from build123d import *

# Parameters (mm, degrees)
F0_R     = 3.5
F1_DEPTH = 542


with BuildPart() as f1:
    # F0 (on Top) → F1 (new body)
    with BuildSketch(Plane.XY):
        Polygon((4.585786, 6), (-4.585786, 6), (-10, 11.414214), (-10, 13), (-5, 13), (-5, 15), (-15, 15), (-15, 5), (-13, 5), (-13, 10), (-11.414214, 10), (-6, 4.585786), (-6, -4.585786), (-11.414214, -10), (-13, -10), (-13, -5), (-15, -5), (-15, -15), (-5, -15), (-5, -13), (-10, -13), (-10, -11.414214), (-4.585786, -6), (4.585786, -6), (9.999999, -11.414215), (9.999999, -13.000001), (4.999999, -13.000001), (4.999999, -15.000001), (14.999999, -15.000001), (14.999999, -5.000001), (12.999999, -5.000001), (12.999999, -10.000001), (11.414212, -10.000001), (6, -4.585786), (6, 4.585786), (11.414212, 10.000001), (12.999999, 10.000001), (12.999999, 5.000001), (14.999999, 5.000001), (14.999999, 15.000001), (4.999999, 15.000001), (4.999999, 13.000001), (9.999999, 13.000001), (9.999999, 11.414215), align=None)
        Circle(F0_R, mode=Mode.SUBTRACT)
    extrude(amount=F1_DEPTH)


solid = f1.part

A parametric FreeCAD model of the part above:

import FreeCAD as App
import Part
import Sketcher

V = App.Vector

doc = App.newDocument("Part")
body = doc.addObject("PartDesign::Body", "Body")

# Sketch on XY plane
sketch1 = body.newObject("Sketcher::SketchObject", "Sketch")
sketch1.AttachmentSupport = (doc.getObject("XY_Plane"), [""])
sketch1.MapMode = "FlatFace"
sketch1.addGeometry([
    Part.LineSegment(V(4.6, 6, 0), V(-4.6, 6, 0)),  # 0
    Part.LineSegment(V(-4.6, 6, 0), V(-10, 11.4, 0)),  # 1
    Part.LineSegment(V(-10, 11.4, 0), V(-10, 13, 0)),  # 2
    Part.LineSegment(V(-10, 13, 0), V(-5, 13, 0)),  # 3
    Part.LineSegment(V(-5, 13, 0), V(-5, 15, 0)),  # 4
    Part.LineSegment(V(-5, 15, 0), V(-15, 15, 0)),  # 5
    Part.LineSegment(V(-15, 15, 0), V(-15, 5, 0)),  # 6
    Part.LineSegment(V(-15, 5, 0), V(-13, 5, 0)),  # 7
    Part.LineSegment(V(-13, 5, 0), V(-13, 10, 0)),  # 8
    Part.LineSegment(V(-13, 10, 0), V(-11.4, 10, 0)),  # 9
    Part.LineSegment(V(-11.4, 10, 0), V(-6, 4.6, 0)),  # 10
    Part.LineSegment(V(-6, 4.6, 0), V(-6, -4.6, 0)),  # 11
    Part.LineSegment(V(-6, -4.6, 0), V(-11.4, -10, 0)),  # 12
    Part.LineSegment(V(-11.4, -10, 0), V(-13, -10, 0)),  # 13
    Part.LineSegment(V(-13, -10, 0), V(-13, -5, 0)),  # 14
    Part.LineSegment(V(-13, -5, 0), V(-15, -5, 0)),  # 15
    Part.LineSegment(V(-15, -5, 0), V(-15, -15, 0)),  # 16
    Part.LineSegment(V(-15, -15, 0), V(-5, -15, 0)),  # 17
    Part.LineSegment(V(-5, -15, 0), V(-5, -13, 0)),  # 18
    Part.LineSegment(V(-5, -13, 0), V(-10, -13, 0)),  # 19
    Part.LineSegment(V(-10, -13, 0), V(-10, -11.4, 0)),  # 20
    Part.LineSegment(V(-10, -11.4, 0), V(-4.6, -6, 0)),  # 21
    Part.LineSegment(V(-4.6, -6, 0), V(4.6, -6, 0)),  # 22
    Part.LineSegment(V(4.6, -6, 0), V(10, -11.4, 0)),  # 23
    Part.LineSegment(V(10, -11.4, 0), V(10, -13, 0)),  # 24
    Part.LineSegment(V(10, -13, 0), V(5, -13, 0)),  # 25
    Part.LineSegment(V(5, -13, 0), V(5, -15, 0)),  # 26
    Part.LineSegment(V(5, -15, 0), V(15, -15, 0)),  # 27
    Part.LineSegment(V(15, -15, 0), V(15, -5, 0)),  # 28
    Part.LineSegment(V(15, -5, 0), V(13, -5, 0)),  # 29
    Part.LineSegment(V(13, -5, 0), V(13, -10, 0)),  # 30
    Part.LineSegment(V(13, -10, 0), V(11.4, -10, 0)),  # 31
    Part.LineSegment(V(11.4, -10, 0), V(6, -4.6, 0)),  # 32
    Part.LineSegment(V(6, -4.6, 0), V(6, 4.6, 0)),  # 33
    Part.LineSegment(V(6, 4.6, 0), V(11.4, 10, 0)),  # 34
    Part.LineSegment(V(11.4, 10, 0), V(13, 10, 0)),  # 35
    Part.LineSegment(V(13, 10, 0), V(13, 5, 0)),  # 36
    Part.LineSegment(V(13, 5, 0), V(15, 5, 0)),  # 37
    Part.LineSegment(V(15, 5, 0), V(15, 15, 0)),  # 38
    Part.LineSegment(V(15, 15, 0), V(5, 15, 0)),  # 39
    Part.LineSegment(V(5, 15, 0), V(5, 13, 0)),  # 40
    Part.LineSegment(V(5, 13, 0), V(10, 13, 0)),  # 41
    Part.LineSegment(V(10, 13, 0), V(10, 11.4, 0)),  # 42
    Part.LineSegment(V(10, 11.4, 0), V(4.6, 6, 0)),  # 43
    Part.Circle(V(0, 0, 0), V(0, 0, 1), 3.5),  # 44
], False)
sketch1.addConstraint([
    Sketcher.Constraint("Coincident", 0, 2, 1, 1),
    Sketcher.Constraint("Coincident", 1, 2, 2, 1),
    Sketcher.Constraint("Coincident", 2, 2, 3, 1),
    Sketcher.Constraint("Coincident", 3, 2, 4, 1),
    Sketcher.Constraint("Coincident", 4, 2, 5, 1),
    Sketcher.Constraint("Coincident", 5, 2, 6, 1),
    Sketcher.Constraint("Coincident", 6, 2, 7, 1),
    Sketcher.Constraint("Coincident", 7, 2, 8, 1),
    Sketcher.Constraint("Coincident", 8, 2, 9, 1),
    Sketcher.Constraint("Coincident", 9, 2, 10, 1),
    Sketcher.Constraint("Coincident", 10, 2, 11, 1),
    Sketcher.Constraint("Coincident", 11, 2, 12, 1),
    Sketcher.Constraint("Coincident", 12, 2, 13, 1),
    Sketcher.Constraint("Coincident", 13, 2, 14, 1),
    Sketcher.Constraint("Coincident", 14, 2, 15, 1),
    Sketcher.Constraint("Coincident", 15, 2, 16, 1),
    Sketcher.Constraint("Coincident", 16, 2, 17, 1),
    Sketcher.Constraint("Coincident", 17, 2, 18, 1),
    Sketcher.Constraint("Coincident", 18, 2, 19, 1),
    Sketcher.Constraint("Coincident", 19, 2, 20, 1),
    Sketcher.Constraint("Coincident", 20, 2, 21, 1),
    Sketcher.Constraint("Coincident", 21, 2, 22, 1),
    Sketcher.Constraint("Coincident", 22, 2, 23, 1),
    Sketcher.Constraint("Coincident", 23, 2, 24, 1),
    Sketcher.Constraint("Coincident", 24, 2, 25, 1),
    Sketcher.Constraint("Coincident", 25, 2, 26, 1),
    Sketcher.Constraint("Coincident", 26, 2, 27, 1),
    Sketcher.Constraint("Coincident", 27, 2, 28, 1),
    Sketcher.Constraint("Coincident", 28, 2, 29, 1),
    Sketcher.Constraint("Coincident", 29, 2, 30, 1),
    Sketcher.Constraint("Coincident", 30, 2, 31, 1),
    Sketcher.Constraint("Coincident", 31, 2, 32, 1),
    Sketcher.Constraint("Coincident", 32, 2, 33, 1),
    Sketcher.Constraint("Coincident", 33, 2, 34, 1),
    Sketcher.Constraint("Coincident", 34, 2, 35, 1),
    Sketcher.Constraint("Coincident", 35, 2, 36, 1),
    Sketcher.Constraint("Coincident", 36, 2, 37, 1),
    Sketcher.Constraint("Coincident", 37, 2, 38, 1),
    Sketcher.Constraint("Coincident", 38, 2, 39, 1),
    Sketcher.Constraint("Coincident", 39, 2, 40, 1),
    Sketcher.Constraint("Coincident", 40, 2, 41, 1),
    Sketcher.Constraint("Coincident", 41, 2, 42, 1),
    Sketcher.Constraint("Coincident", 42, 2, 43, 1),
    Sketcher.Constraint("Coincident", 43, 2, 0, 1),
    Sketcher.Constraint("Horizontal", 0),
    Sketcher.Constraint("Vertical", 2),
    Sketcher.Constraint("Horizontal", 3),
    Sketcher.Constraint("Vertical", 4),
    Sketcher.Constraint("Horizontal", 5),
    Sketcher.Constraint("Vertical", 6),
    Sketcher.Constraint("Horizontal", 7),
    Sketcher.Constraint("Vertical", 8),
    Sketcher.Constraint("Horizontal", 9),
    Sketcher.Constraint("Vertical", 11),
    Sketcher.Constraint("Horizontal", 13),
    Sketcher.Constraint("Vertical", 14),
    Sketcher.Constraint("Horizontal", 15),
    Sketcher.Constraint("Vertical", 16),
    Sketcher.Constraint("Horizontal", 17),
    Sketcher.Constraint("Vertical", 18),
    Sketcher.Constraint("Horizontal", 19),
    Sketcher.Constraint("Vertical", 20),
    Sketcher.Constraint("Horizontal", 22),
    Sketcher.Constraint("Vertical", 24),
    Sketcher.Constraint("Horizontal", 25),
    Sketcher.Constraint("Vertical", 26),
    Sketcher.Constraint("Horizontal", 27),
    Sketcher.Constraint("Vertical", 28),
    Sketcher.Constraint("Horizontal", 29),
    Sketcher.Constraint("Vertical", 30),
    Sketcher.Constraint("Horizontal", 31),
    Sketcher.Constraint("Vertical", 33),
    Sketcher.Constraint("Horizontal", 35),
    Sketcher.Constraint("Vertical", 36),
    Sketcher.Constraint("Horizontal", 37),
    Sketcher.Constraint("Vertical", 38),
    Sketcher.Constraint("Horizontal", 39),
    Sketcher.Constraint("Vertical", 40),
    Sketcher.Constraint("Horizontal", 41),
    Sketcher.Constraint("Vertical", 42),
    Sketcher.Constraint("Coincident", 44, 3, -1, 1),
    Sketcher.Constraint("Symmetric", 0, 2, 22, 2, -1, 1),
    Sketcher.Constraint("Symmetric", 1, 2, 23, 2, -1, 1),
    Sketcher.Constraint("Symmetric", 3, 2, 25, 2, -1, 1),
    Sketcher.Constraint("Symmetric", 5, 2, 27, 2, -1, 1),
    Sketcher.Constraint("Symmetric", 7, 2, 29, 2, -1, 1),
    Sketcher.Constraint("Symmetric", 9, 2, 31, 2, -1, 1),
    Sketcher.Constraint("Symmetric", 10, 2, 32, 2, -1, 1),
    Sketcher.Constraint("Symmetric", 12, 2, 34, 2, -1, 1),
    Sketcher.Constraint("Symmetric", 14, 2, 36, 2, -1, 1),
    Sketcher.Constraint("Symmetric", 16, 2, 38, 2, -1, 1),
    Sketcher.Constraint("Symmetric", 18, 2, 40, 2, -1, 1),
    Sketcher.Constraint("Symmetric", 20, 2, 42, 2, -1, 1),
    Sketcher.Constraint("Symmetric", 20, 2, 23, 2, -2),
    Sketcher.Constraint("Symmetric", 18, 2, 25, 2, -2),
    Sketcher.Constraint("Symmetric", 16, 2, 27, 2, -2),
    Sketcher.Constraint("Symmetric", 14, 2, 29, 2, -2),
    Sketcher.Constraint("Symmetric", 12, 2, 31, 2, -2),
    Sketcher.Constraint("Parallel", 1, 10),
    Sketcher.Constraint("Perpendicular", 10, 12),
    Sketcher.Constraint("Parallel", 12, 21),
    Sketcher.Constraint("Perpendicular", 32, 34),
    Sketcher.Constraint("Parallel", 34, 43),
    Sketcher.Constraint("Horizontal", 11, 2, 32, 2),
    Sketcher.Constraint("Equal", 35, 2),
    Sketcher.Constraint("Equal", 37, 4),
    Sketcher.Constraint("Equal", 39, 6),
    Sketcher.Constraint("Equal", 41, 8),
    Sketcher.Constraint("Equal", 22, 11),
    Sketcher.Constraint("Equal", 1, 10),
    Sketcher.Constraint("Diameter", 44, 7.0),
    Sketcher.Constraint("DistanceX", 3, 1, 3, 2, 5.0),
    Sketcher.Constraint("DistanceX", 5, 2, 5, 1, 10.0),
    Sketcher.Constraint("DistanceX", 7, 1, 7, 2, 2.0),
    Sketcher.Constraint("DistanceY", -1, 1, 0, 2, 6.0),
    Sketcher.Constraint("DistanceX", 1, 2, -1, 1, 10.0),
    Sketcher.Constraint("DistanceX", 0, 2, 0, 1, 9.171572),
])
pad1 = body.newObject("PartDesign::Pad", "Pad")
pad1.Profile = sketch1
pad1.Length = 542

doc.recompute()
